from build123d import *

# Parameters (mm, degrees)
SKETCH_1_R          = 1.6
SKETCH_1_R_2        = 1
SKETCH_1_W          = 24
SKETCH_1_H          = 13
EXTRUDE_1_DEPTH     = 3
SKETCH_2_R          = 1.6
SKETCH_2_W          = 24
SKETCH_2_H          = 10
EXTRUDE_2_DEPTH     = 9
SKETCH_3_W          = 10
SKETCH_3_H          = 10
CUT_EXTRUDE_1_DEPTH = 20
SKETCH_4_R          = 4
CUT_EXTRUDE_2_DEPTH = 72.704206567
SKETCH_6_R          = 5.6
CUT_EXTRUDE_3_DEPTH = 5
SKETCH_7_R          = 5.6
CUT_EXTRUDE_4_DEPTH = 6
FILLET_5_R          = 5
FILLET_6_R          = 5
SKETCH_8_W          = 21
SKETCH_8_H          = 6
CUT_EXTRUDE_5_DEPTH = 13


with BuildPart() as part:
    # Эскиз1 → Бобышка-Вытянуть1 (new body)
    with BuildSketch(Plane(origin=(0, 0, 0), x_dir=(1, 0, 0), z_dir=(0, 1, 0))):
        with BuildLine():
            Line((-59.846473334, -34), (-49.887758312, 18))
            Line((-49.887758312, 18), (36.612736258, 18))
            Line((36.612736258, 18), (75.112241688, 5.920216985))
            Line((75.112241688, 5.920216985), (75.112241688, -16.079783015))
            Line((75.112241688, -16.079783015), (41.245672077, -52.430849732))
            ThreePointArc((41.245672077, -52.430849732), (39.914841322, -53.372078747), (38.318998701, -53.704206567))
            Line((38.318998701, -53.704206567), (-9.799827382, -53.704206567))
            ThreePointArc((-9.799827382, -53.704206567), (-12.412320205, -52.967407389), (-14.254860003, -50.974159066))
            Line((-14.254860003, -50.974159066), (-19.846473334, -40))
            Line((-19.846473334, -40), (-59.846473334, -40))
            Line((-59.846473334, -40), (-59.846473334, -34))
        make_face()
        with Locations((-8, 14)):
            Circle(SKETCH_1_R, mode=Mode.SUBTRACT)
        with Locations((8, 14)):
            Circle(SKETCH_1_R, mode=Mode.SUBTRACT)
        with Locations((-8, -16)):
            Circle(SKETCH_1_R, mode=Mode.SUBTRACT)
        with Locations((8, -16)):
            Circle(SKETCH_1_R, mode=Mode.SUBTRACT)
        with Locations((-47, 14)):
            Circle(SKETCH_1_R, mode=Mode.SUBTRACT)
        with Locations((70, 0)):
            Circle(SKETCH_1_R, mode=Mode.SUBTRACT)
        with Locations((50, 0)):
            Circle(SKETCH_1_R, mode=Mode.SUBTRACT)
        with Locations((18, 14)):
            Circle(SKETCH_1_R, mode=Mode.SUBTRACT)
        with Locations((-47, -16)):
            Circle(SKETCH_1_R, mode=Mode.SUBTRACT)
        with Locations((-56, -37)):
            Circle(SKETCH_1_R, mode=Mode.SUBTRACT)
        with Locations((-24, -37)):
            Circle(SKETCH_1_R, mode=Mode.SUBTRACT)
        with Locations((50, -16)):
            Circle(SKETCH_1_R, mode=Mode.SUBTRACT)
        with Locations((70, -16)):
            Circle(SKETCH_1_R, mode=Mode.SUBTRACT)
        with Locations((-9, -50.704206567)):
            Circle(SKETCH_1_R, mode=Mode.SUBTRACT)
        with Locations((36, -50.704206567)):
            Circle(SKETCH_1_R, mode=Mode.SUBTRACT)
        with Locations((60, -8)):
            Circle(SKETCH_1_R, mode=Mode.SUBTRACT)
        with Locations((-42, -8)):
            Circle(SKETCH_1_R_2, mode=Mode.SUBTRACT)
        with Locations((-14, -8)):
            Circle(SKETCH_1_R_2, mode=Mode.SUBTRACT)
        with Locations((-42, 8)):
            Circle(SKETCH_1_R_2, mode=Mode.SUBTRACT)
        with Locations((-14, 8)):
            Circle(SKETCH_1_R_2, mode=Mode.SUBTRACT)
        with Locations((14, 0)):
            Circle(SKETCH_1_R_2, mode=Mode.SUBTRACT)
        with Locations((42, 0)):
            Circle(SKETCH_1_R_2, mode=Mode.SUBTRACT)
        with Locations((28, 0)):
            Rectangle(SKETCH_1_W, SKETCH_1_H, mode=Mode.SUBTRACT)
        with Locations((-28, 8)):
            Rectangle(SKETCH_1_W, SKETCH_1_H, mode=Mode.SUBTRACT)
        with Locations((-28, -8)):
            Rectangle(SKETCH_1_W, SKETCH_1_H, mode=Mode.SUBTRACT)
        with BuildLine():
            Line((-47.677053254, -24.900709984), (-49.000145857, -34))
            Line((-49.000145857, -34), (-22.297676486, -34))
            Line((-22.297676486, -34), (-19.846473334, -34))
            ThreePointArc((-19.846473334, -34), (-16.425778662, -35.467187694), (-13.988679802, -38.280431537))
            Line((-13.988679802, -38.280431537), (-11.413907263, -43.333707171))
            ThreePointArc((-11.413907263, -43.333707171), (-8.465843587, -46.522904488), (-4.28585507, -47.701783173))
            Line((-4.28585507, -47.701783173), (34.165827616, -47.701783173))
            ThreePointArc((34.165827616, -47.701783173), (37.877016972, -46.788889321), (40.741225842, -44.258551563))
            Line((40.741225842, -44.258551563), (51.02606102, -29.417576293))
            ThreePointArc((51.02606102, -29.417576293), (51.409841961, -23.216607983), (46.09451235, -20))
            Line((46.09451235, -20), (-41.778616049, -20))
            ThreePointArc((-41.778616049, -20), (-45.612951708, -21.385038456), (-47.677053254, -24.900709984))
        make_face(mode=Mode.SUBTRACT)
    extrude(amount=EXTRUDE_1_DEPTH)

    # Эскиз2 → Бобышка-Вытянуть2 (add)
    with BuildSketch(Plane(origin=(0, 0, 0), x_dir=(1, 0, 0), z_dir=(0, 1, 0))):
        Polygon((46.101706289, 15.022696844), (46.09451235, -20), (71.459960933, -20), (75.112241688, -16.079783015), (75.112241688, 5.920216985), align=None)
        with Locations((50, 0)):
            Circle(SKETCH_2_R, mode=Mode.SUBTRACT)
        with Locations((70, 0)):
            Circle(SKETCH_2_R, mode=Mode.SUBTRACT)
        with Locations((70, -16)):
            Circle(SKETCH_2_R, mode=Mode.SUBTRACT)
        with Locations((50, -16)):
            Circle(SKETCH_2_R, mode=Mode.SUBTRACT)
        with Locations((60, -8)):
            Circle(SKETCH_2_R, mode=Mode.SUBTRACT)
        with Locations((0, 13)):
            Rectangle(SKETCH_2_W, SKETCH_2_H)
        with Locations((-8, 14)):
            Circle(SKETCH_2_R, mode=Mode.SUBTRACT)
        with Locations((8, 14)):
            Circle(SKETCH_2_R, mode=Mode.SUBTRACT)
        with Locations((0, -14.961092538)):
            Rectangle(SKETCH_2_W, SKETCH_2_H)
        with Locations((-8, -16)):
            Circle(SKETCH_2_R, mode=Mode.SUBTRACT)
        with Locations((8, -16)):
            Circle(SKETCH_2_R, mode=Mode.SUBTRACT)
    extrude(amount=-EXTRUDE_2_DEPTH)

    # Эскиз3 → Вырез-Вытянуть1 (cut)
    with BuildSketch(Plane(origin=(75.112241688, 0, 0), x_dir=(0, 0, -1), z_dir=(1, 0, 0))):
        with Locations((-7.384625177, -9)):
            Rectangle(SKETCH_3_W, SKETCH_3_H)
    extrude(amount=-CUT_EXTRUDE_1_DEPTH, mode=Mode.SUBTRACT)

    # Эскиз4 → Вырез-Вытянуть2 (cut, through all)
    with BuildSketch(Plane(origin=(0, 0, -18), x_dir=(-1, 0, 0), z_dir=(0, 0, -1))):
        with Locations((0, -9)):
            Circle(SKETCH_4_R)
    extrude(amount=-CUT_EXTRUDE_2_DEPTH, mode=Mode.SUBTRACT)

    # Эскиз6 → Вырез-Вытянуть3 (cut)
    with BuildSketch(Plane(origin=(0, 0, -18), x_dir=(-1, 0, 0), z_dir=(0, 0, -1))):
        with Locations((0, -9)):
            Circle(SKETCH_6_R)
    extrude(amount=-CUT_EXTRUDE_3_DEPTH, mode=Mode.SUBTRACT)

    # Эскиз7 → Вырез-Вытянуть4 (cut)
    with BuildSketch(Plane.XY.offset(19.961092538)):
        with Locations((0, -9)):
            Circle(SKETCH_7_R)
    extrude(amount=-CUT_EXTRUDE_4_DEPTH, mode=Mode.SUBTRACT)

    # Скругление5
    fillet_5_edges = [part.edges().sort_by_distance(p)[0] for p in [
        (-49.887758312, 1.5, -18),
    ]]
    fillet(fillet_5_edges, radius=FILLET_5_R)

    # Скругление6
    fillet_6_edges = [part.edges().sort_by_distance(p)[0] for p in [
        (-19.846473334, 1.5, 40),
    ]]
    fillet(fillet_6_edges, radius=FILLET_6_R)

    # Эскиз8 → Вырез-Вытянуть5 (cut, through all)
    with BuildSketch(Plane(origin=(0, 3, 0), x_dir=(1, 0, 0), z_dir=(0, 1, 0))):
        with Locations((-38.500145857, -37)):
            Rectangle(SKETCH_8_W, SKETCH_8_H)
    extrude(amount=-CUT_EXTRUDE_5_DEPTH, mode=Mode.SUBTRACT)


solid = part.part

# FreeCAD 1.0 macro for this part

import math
import FreeCAD as App
import Part
import Sketcher
Q = App.Units.Quantity


def edges_at(feature, points):
    """Names of the edges that pass closest to the given points."""
    edges = feature.Shape.Edges
    near = lambda p: min(range(len(edges)), key=lambda i: edges[i].distToShape(Part.Vertex(*p))[0])
    return sorted({f"Edge{near(p) + 1}" for p in points})


def add_polygon(sketch, points):
    """Adds a closed chain of lines whose ends are joined by coincident constraints."""
    first, n = sketch.GeometryCount, len(points)
    for a, b in zip(points, points[1:] + points[:1]):
        sketch.addGeometry(Part.LineSegment(App.Vector(*a, 0), App.Vector(*b, 0)), False)
    for i in range(n):
        sketch.addConstraint(Sketcher.Constraint("Coincident", first + i, 2, first + (i + 1) % n, 1))

doc = App.newDocument("Part")
body = doc.addObject("PartDesign::Body", "Body")

sketch1 = body.newObject("Sketcher::SketchObject", "Sketch")
sketch1.AttachmentSupport = (doc.getObject("XZ_Plane"), [""])
sketch1.MapMode = "FlatFace"
sketch1.addGeometry(Part.LineSegment(App.Vector(-49.9, -18, 0), App.Vector(-59.8, 34, 0)), False)
sketch1.addGeometry(Part.LineSegment(App.Vector(-59.8, 34, 0), App.Vector(-59.8, 40, 0)), False)
sketch1.addGeometry(Part.LineSegment(App.Vector(-59.8, 40, 0), App.Vector(-19.8, 40, 0)), False)
sketch1.addGeometry(Part.LineSegment(App.Vector(-19.8, 40, 0), App.Vector(-14.3, 51, 0)), False)
sketch1.addGeometry(Part.ArcOfCircle(Part.Circle(App.Vector(-9.8, 48.7, 0), App.Vector(0, 0, 1), 5), math.radians(90), math.radians(153)), False)
sketch1.addGeometry(Part.LineSegment(App.Vector(-9.8, 53.7, 0), App.Vector(38.3, 53.7, 0)), False)
sketch1.addGeometry(Part.ArcOfCircle(Part.Circle(App.Vector(38.3, 49.7, 0), App.Vector(0, 0, 1), 4), math.radians(43), math.radians(90)), False)
sketch1.addGeometry(Part.LineSegment(App.Vector(41.2, 52.4, 0), App.Vector(75.1, 16.1, 0)), False)
sketch1.addGeometry(Part.LineSegment(App.Vector(75.1, 16.1, 0), App.Vector(75.1, -5.9, 0)), False)
sketch1.addGeometry(Part.LineSegment(App.Vector(75.1, -5.9, 0), App.Vector(36.6, -18, 0)), False)
sketch1.addGeometry(Part.LineSegment(App.Vector(36.6, -18, 0), App.Vector(-49.9, -18, 0)), False)
sketch1.addGeometry(Part.Circle(App.Vector(36, 50.7, 0), App.Vector(0, 0, 1), 1.6), False)
sketch1.addGeometry(Part.Circle(App.Vector(-9, 50.7, 0), App.Vector(0, 0, 1), 1.6), False)
sketch1.addGeometry(Part.Circle(App.Vector(-24, 37, 0), App.Vector(0, 0, 1), 1.6), False)
sketch1.addGeometry(Part.Circle(App.Vector(-56, 37, 0), App.Vector(0, 0, 1), 1.6), False)
sketch1.addGeometry(Part.ArcOfCircle(Part.Circle(App.Vector(-41.8, 26, 0), App.Vector(0, 0, 1), 6), math.radians(-169), math.radians(-90)), False)
sketch1.addGeometry(Part.LineSegment(App.Vector(-41.8, 20, 0), App.Vector(46.1, 20, 0)), False)
sketch1.addGeometry(Part.ArcOfCircle(Part.Circle(App.Vector(46.1, 26, 0), App.Vector(0, 0, 1), 6), math.radians(-90), math.radians(35)), False)
sketch1.addGeometry(Part.LineSegment(App.Vector(51, 29.4, 0), App.Vector(40.7, 44.3, 0)), False)
sketch1.addGeometry(Part.ArcOfCircle(Part.Circle(App.Vector(34.2, 39.7, 0), App.Vector(0, 0, 1), 8), math.radians(35), math.radians(90)), False)
sketch1.addGeometry(Part.LineSegment(App.Vector(34.2, 47.7, 0), App.Vector(-4.3, 47.7, 0)), False)
sketch1.addGeometry(Part.ArcOfCircle(Part.Circle(App.Vector(-4.3, 39.7, 0), App.Vector(0, 0, 1), 8), math.radians(90), math.radians(153)), False)
sketch1.addGeometry(Part.LineSegment(App.Vector(-11.4, 43.3, 0), App.Vector(-14, 38.3, 0)), False)
sketch1.addGeometry(Part.ArcOfCircle(Part.Circle(App.Vector(-21.3, 42.2, 0), App.Vector(0, 0, 1), 8.3), math.radians(-80), math.radians(-28)), False)
sketch1.addGeometry(Part.LineSegment(App.Vector(-19.8, 34, 0), App.Vector(-49, 34, 0)), False)
sketch1.addGeometry(Part.LineSegment(App.Vector(-49, 34, 0), App.Vector(-47.7, 24.9, 0)), False)
sketch1.addGeometry(Part.Circle(App.Vector(70, 16, 0), App.Vector(0, 0, 1), 1.6), False)
sketch1.addGeometry(Part.Circle(App.Vector(50, 16, 0), App.Vector(0, 0, 1), 1.6), False)
sketch1.addGeometry(Part.Circle(App.Vector(60, 8, 0), App.Vector(0, 0, 1), 1.6), False)
sketch1.addGeometry(Part.Circle(App.Vector(8, 16, 0), App.Vector(0, 0, 1), 1.6), False)
sketch1.addGeometry(Part.Circle(App.Vector(70, 0, 0), App.Vector(0, 0, 1), 1.6), False)
sketch1.addGeometry(Part.Circle(App.Vector(50, 0, 0), App.Vector(0, 0, 1), 1.6), False)
sketch1.addGeometry(Part.Circle(App.Vector(42, 0, 0), App.Vector(0, 0, 1), 1), False)
add_polygon(sketch1, [(16, 6.5), (16, -6.5), (40, -6.5), (40, 6.5)])
sketch1.addGeometry(Part.Circle(App.Vector(14, 0, 0), App.Vector(0, 0, 1), 1), False)
sketch1.addGeometry(Part.Circle(App.Vector(18, -14, 0), App.Vector(0, 0, 1), 1.6), False)
sketch1.addGeometry(Part.Circle(App.Vector(8, -14, 0), App.Vector(0, 0, 1), 1.6), False)
sketch1.addGeometry(Part.Circle(App.Vector(-8, 16, 0), App.Vector(0, 0, 1), 1.6), False)
sketch1.addGeometry(Part.Circle(App.Vector(-14, 8, 0), App.Vector(0, 0, 1), 1), False)
sketch1.addGeometry(Part.Circle(App.Vector(-47, 16, 0), App.Vector(0, 0, 1), 1.6), False)
add_polygon(sketch1, [(-40, 14.5), (-40, 1.5), (-16, 1.5), (-16, 14.5)])
sketch1.addGeometry(Part.Circle(App.Vector(-42, 8, 0), App.Vector(0, 0, 1), 1), False)
sketch1.addGeometry(Part.Circle(App.Vector(-8, -14, 0), App.Vector(0, 0, 1), 1.6), False)
sketch1.addGeometry(Part.Circle(App.Vector(-14, -8, 0), App.Vector(0, 0, 1), 1), False)
add_polygon(sketch1, [(-40, -1.5), (-40, -14.5), (-16, -14.5), (-16, -1.5)])
sketch1.addGeometry(Part.Circle(App.Vector(-42, -8, 0), App.Vector(0, 0, 1), 1), False)
sketch1.addGeometry(Part.Circle(App.Vector(-47, -14, 0), App.Vector(0, 0, 1), 1.6), False)
sketch1.addConstraint([
    Sketcher.Constraint("Coincident", 0, 2, 1, 1),
    Sketcher.Constraint("Coincident", 1, 2, 2, 1),
    Sketcher.Constraint("Coincident", 2, 2, 3, 1),
    Sketcher.Constraint("Tangent", 3, 2, 4, 2),
    Sketcher.Constraint("Tangent", 4, 1, 5, 1),
    Sketcher.Constraint("Tangent", 5, 2, 6, 2),
    Sketcher.Constraint("Tangent", 6, 1, 7, 1),
    Sketcher.Constraint("Coincident", 7, 2, 8, 1),
    Sketcher.Constraint("Coincident", 8, 2, 9, 1),
    Sketcher.Constraint("Coincident", 9, 2, 10, 1),
    Sketcher.Constraint("Coincident", 10, 2, 0, 1),
    Sketcher.Constraint("Tangent", 15, 2, 16, 1),
    Sketcher.Constraint("Tangent", 16, 2, 17, 1),
    Sketcher.Constraint("Tangent", 17, 2, 18, 1),
    Sketcher.Constraint("Tangent", 18, 2, 19, 1),
    Sketcher.Constraint("Tangent", 19, 2, 20, 1),
    Sketcher.Constraint("Tangent", 20, 2, 21, 1),
    Sketcher.Constraint("Tangent", 21, 2, 22, 1),
    Sketcher.Constraint("Coincident", 22, 2, 23, 2),
    Sketcher.Constraint("Coincident", 23, 1, 24, 1),
    Sketcher.Constraint("Coincident", 24, 2, 25, 1),
    Sketcher.Constraint("Coincident", 25, 2, 15, 1),
    Sketcher.Constraint("Vertical", 1),
    Sketcher.Constraint("Horizontal", 2),
    Sketcher.Constraint("Horizontal", 5),
    Sketcher.Constraint("Vertical", 8),
    Sketcher.Constraint("Horizontal", 10),
    Sketcher.Constraint("Horizontal", 16),
    Sketcher.Constraint("Horizontal", 20),
    Sketcher.Constraint("Horizontal", 24),
    Sketcher.Constraint("Vertical", 33),
    Sketcher.Constraint("Horizontal", 34),
    Sketcher.Constraint("Vertical", 35),
    Sketcher.Constraint("Horizontal", 36),
    Sketcher.Constraint("Vertical", 43),
    Sketcher.Constraint("Horizontal", 44),
    Sketcher.Constraint("Vertical", 45),
    Sketcher.Constraint("Horizontal", 46),
    Sketcher.Constraint("Vertical", 50),
    Sketcher.Constraint("Horizontal", 51),
    Sketcher.Constraint("Vertical", 52),
    Sketcher.Constraint("Horizontal", 53),
    Sketcher.Constraint("Equal", 11, 12),
    Sketcher.Constraint("Equal", 12, 13),
    Sketcher.Constraint("Equal", 13, 14),
    Sketcher.Constraint("Equal", 15, 17),
    Sketcher.Constraint("Equal", 19, 21),
    Sketcher.Constraint("Equal", 14, 26),
    Sketcher.Constraint("Equal", 26, 27),
    Sketcher.Constraint("Equal", 27, 28),
    Sketcher.Constraint("Equal", 28, 29),
    Sketcher.Constraint("Equal", 29, 30),
    Sketcher.Constraint("Equal", 30, 31),
    Sketcher.Constraint("Equal", 32, 37),
    Sketcher.Constraint("Equal", 31, 38),
    Sketcher.Constraint("Equal", 38, 39),
    Sketcher.Constraint("Equal", 39, 40),
    Sketcher.Constraint("Equal", 37, 41),
    Sketcher.Constraint("Equal", 40, 42),
    Sketcher.Constraint("Equal", 41, 47),
    Sketcher.Constraint("Equal", 42, 48),
    Sketcher.Constraint("Equal", 47, 49),
    Sketcher.Constraint("Equal", 49, 54),
    Sketcher.Constraint("Equal", 48, 55),
    Sketcher.Constraint("Symmetric", 29, 3, 40, 3, -2),
    Sketcher.Constraint("Symmetric", 39, 3, 48, 3, -2),
    Sketcher.Constraint("Symmetric", 41, 3, 49, 3, -1),
    Sketcher.Constraint("Symmetric", 47, 3, 54, 3, -1),
    Sketcher.Constraint("Symmetric", 46, 2, 50, 2, -1),
    Sketcher.Constraint("Symmetric", 44, 2, 52, 2, -1),
    Sketcher.Constraint("PointOnObject", 30, 3, -1),
    Sketcher.Constraint("PointOnObject", 31, 3, -1),
    Sketcher.Constraint("PointOnObject", 32, 3, -1),
    Sketcher.Constraint("PointOnObject", 37, 3, -1),
    Sketcher.Constraint("Parallel", 3, 22),
    Sketcher.Constraint("Horizontal", 11, 3, 12, 3),
    Sketcher.Constraint("Horizontal", 13, 3, 14, 3),
    Sketcher.Constraint("Horizontal", 26, 3, 27, 3),
    Sketcher.Constraint("Horizontal", 27, 3, 29, 3),
    Sketcher.Constraint("Horizontal", 38, 3, 39, 3),
    Sketcher.Constraint("Horizontal", 28, 3, 41, 3),
    Sketcher.Constraint("Horizontal", 40, 3, 42, 3),
    Sketcher.Constraint("Horizontal", 41, 3, 47, 3),
    Sketcher.Constraint("Horizontal", 48, 3, 55, 3),
    Sketcher.Constraint("Horizontal", 0, 2, 23, 1),
    Sketcher.Constraint("Vertical", 26, 3, 30, 3),
    Sketcher.Constraint("Vertical", 27, 3, 31, 3),
    Sketcher.Constraint("Vertical", 29, 3, 39, 3),
    Sketcher.Constraint("Vertical", 42, 3, 55, 3),
    Sketcher.Constraint("Vertical", 2, 2, 23, 1),
    Sketcher.Constraint("Equal", 36, 44),
    Sketcher.Constraint("Equal", 35, 43),
    Sketcher.Constraint("Diameter", 32, Q("2 mm")),
    Sketcher.Constraint("Radius", 4, Q("5 mm")),
    Sketcher.Constraint("Radius", 6, Q("4 mm")),
    Sketcher.Constraint("Radius", 15, Q("6 mm")),
    Sketcher.Constraint("Radius", 19, Q("8 mm")),
    Sketcher.Constraint("Diameter", 11, Q("3.2 mm")),
    Sketcher.Constraint("DistanceX", 2, 1, 2, 2, Q("40 mm")),
    Sketcher.Constraint("DistanceX", 34, 1, 34, 2, Q("24 mm")),
    Sketcher.Constraint("DistanceY", 1, 1, 1, 2, Q("6 mm")),
    Sketcher.Constraint("DistanceY", 8, 2, 8, 1, Q("22 mm")),
    Sketcher.Constraint("DistanceY", 33, 2, 33, 1, Q("13 mm")),
    Sketcher.Constraint("Angle", 3, Q("63 deg")),
    Sketcher.Constraint("DistanceX", -1, 1, 11, 3, Q("36 mm")),
    Sketcher.Constraint("DistanceX", 12, 3, -1, 1, Q("9 mm")),
    Sketcher.Constraint("DistanceX", 13, 3, -1, 1, Q("24 mm")),
    Sketcher.Constraint("DistanceY", -1, 1, 13, 3, Q("37 mm")),
    Sketcher.Constraint("DistanceX", 14, 3, -1, 1, Q("56 mm")),
    Sketcher.Constraint("DistanceY", -1, 1, 15, 3, Q("26 mm")),
    Sketcher.Constraint("DistanceX", -1, 1, 26, 3, Q("70 mm")),
    Sketcher.Constraint("DistanceY", -1, 1, 26, 3, Q("16 mm")),
    Sketcher.Constraint("DistanceX", -1, 1, 27, 3, Q("50 mm")),
    Sketcher.Constraint("DistanceX", -1, 1, 28, 3, Q("60 mm")),
    Sketcher.Constraint("DistanceY", -1, 1, 28, 3, Q("8 mm")),
    Sketcher.Constraint("DistanceX", -1, 1, 29, 3, Q("8 mm")),
    Sketcher.Constraint("DistanceX", -1, 1, 32, 3, Q("42 mm")),
    Sketcher.Constraint("DistanceX", -1, 1, 37, 3, Q("14 mm")),
    Sketcher.Constraint("DistanceX", -1, 1, 38, 3, Q("18 mm")),
    Sketcher.Constraint("DistanceY", 38, 3, -1, 1, Q("14 mm")),
    Sketcher.Constraint("DistanceX", 41, 3, -1, 1, Q("14 mm")),
    Sketcher.Constraint("DistanceX", 42, 3, -1, 1, Q("47 mm")),
    Sketcher.Constraint("DistanceX", 47, 3, -1, 1, Q("42 mm")),
    Sketcher.Constraint("DistanceY", -1, 1, 0, 2, Q("34 mm")),
    Sketcher.Constraint("DistanceY", 9, 2, -1, 1, Q("18 mm")),
    Sketcher.Constraint("DistanceX", -1, 1, 33, 2, Q("16 mm")),
    Sketcher.Constraint("DistanceX", 43, 2, -1, 1, Q("40 mm")),
    Sketcher.Constraint("DistanceY", 33, 2, -1, 1, Q("6.5 mm")),
    Sketcher.Constraint("DistanceY", -1, 1, 43, 2, Q("1.5 mm")),
    Sketcher.Constraint("Angle", 9, Q("-162.579988 deg")),
    Sketcher.Constraint("DistanceX", -1, 1, 6, 3, Q("38.318999 mm")),
    Sketcher.Constraint("Radius", 23, Q("8.309957 mm")),
    Sketcher.Constraint("DistanceX", 16, 1, 16, 2, Q("87.873128 mm")),
    Sketcher.Constraint("Distance", 0, Q("52.945028 mm")),
    Sketcher.Constraint("Distance", 9, Q("40.350131 mm")),
    Sketcher.Constraint("Distance", 25, Q("9.19498 mm")),
    Sketcher.Constraint("DistanceX", 5, 1, 5, 2, Q("48.118826 mm")),
    Sketcher.Constraint("DistanceX", 10, 2, 10, 1, Q("86.500495 mm")),
    Sketcher.Constraint("DistanceX", 20, 2, 20, 1, Q("38.451683 mm")),
    Sketcher.Constraint("DistanceX", 24, 2, 24, 1, Q("29.153673 mm")),
    Sketcher.Constraint("DistanceY", -1, 1, 3, 2, Q("50.974159 mm")),
    Sketcher.Constraint("DistanceX", -1, 1, 17, 2, Q("51.026061 mm")),
    Sketcher.Constraint("DistanceY", -1, 1, 18, 2, Q("44.258552 mm")),
    Sketcher.Constraint("DistanceX", 22, 2, -1, 1, Q("13.98868 mm")),
    Sketcher.Constraint("DistanceY", -1, 1, 22, 2, Q("38.280432 mm")),
    Sketcher.Constraint("DistanceY", -1, 1, 11, 3, Q("50.704207 mm")),
])
pad1 = body.newObject("PartDesign::Pad", "Pad")
pad1.Profile = sketch1
pad1.Length = 3
pad1.Reversed = True

sketch2 = body.newObject("Sketcher::SketchObject", "Sketch001")
sketch2.AttachmentSupport = (doc.getObject("XZ_Plane"), [""])
sketch2.MapMode = "FlatFace"
add_polygon(sketch2, [(46.1, -15), (46.1, 20), (71.5, 20), (75.1, 16.1), (75.1, -5.9)])
sketch2.addGeometry(Part.Circle(App.Vector(50, 16, 0), App.Vector(0, 0, 1), 1.6), False)
sketch2.addGeometry(Part.Circle(App.Vector(70, 16, 0), App.Vector(0, 0, 1), 1.6), False)
sketch2.addGeometry(Part.Circle(App.Vector(50, 0, 0), App.Vector(0, 0, 1), 1.6), False)
sketch2.addGeometry(Part.Circle(App.Vector(60, 8, 0), App.Vector(0, 0, 1), 1.6), False)
sketch2.addGeometry(Part.Circle(App.Vector(70, 0, 0), App.Vector(0, 0, 1), 1.6), False)
add_polygon(sketch2, [(-12, -18), (-12, -8), (12, -8), (12, -18)])
sketch2.addGeometry(Part.Circle(App.Vector(-8, -14, 0), App.Vector(0, 0, 1), 1.6), False)
sketch2.addGeometry(Part.Circle(App.Vector(8, -14, 0), App.Vector(0, 0, 1), 1.6), False)
add_polygon(sketch2, [(-12, 10), (-12, 20), (12, 20), (12, 10)])
sketch2.addGeometry(Part.Circle(App.Vector(-8, 16, 0), App.Vector(0, 0, 1), 1.6), False)
sketch2.addGeometry(Part.Circle(App.Vector(8, 16, 0), App.Vector(0, 0, 1), 1.6), False)
sketch2.addConstraint([
    Sketcher.Constraint("Horizontal", 1),
    Sketcher.Constraint("Vertical", 3),
    Sketcher.Constraint("Vertical", 10),
    Sketcher.Constraint("Horizontal", 11),
    Sketcher.Constraint("Vertical", 12),
    Sketcher.Constraint("Horizontal", 13),
    Sketcher.Constraint("Vertical", 16),
    Sketcher.Constraint("Horizontal", 17),
    Sketcher.Constraint("Vertical", 18),
    Sketcher.Constraint("Horizontal", 19),
    Sketcher.Constraint("Equal", 5, 6),
    Sketcher.Constraint("Equal", 6, 7),
    Sketcher.Constraint("Equal", 7, 8),
    Sketcher.Constraint("Equal", 8, 9),
    Sketcher.Constraint("Equal", 9, 14),
    Sketcher.Constraint("Equal", 14, 15),
    Sketcher.Constraint("Equal", 15, 20),
    Sketcher.Constraint("Equal", 20, 21),
    Sketcher.Constraint("Symmetric", 14, 3, 15, 3, -2),
    Sketcher.Constraint("Symmetric", 20, 3, 21, 3, -2),
    Sketcher.Constraint("PointOnObject", 7, 3, -1),
    Sketcher.Constraint("PointOnObject", 9, 3, -1),
    Sketcher.Constraint("Horizontal", 5, 3, 6, 3),
    Sketcher.Constraint("Horizontal", 6, 3, 20, 3),
    Sketcher.Constraint("Vertical", 5, 3, 7, 3),
    Sketcher.Constraint("Vertical", 6, 3, 9, 3),
    Sketcher.Constraint("Vertical", 14, 3, 20, 3),
    Sketcher.Constraint("Vertical", 13, 2, 16, 2),
    Sketcher.Constraint("Vertical", 12, 2, 17, 2),
    Sketcher.Constraint("Equal", 12, 16),
    Sketcher.Constraint("Diameter", 5, Q("3.2 mm")),
    Sketcher.Constraint("DistanceX", 11, 1, 11, 2, Q("24 mm")),
    Sketcher.Constraint("DistanceY", 3, 2, 3, 1, Q("22 mm")),
    Sketcher.Constraint("DistanceY", 10, 1, 10, 2, Q("10 mm")),
    Sketcher.Constraint("DistanceX", -1, 1, 5, 3, Q("50 mm")),
    Sketcher.Constraint("DistanceY", -1, 1, 5, 3, Q("16 mm")),
    Sketcher.Constraint("DistanceX", -1, 1, 6, 3, Q("70 mm")),
    Sketcher.Constraint("DistanceX", -1, 1, 8, 3, Q("60 mm")),
    Sketcher.Constraint("DistanceY", -1, 1, 8, 3, Q("8 mm")),
    Sketcher.Constraint("DistanceX", 14, 3, -1, 1, Q("8 mm")),
    Sketcher.Constraint("DistanceY", 14, 3, -1, 1, Q("14 mm")),
    Sketcher.Constraint("DistanceY", -1, 1, 0, 2, Q("20 mm")),
    Sketcher.Constraint("DistanceX", 10, 2, -1, 1, Q("12 mm")),
    Sketcher.Constraint("DistanceY", 10, 2, -1, 1, Q("8 mm")),
    Sketcher.Constraint("Angle", 4, Q("-162.579988 deg")),
    Sketcher.Constraint("DistanceX", 1, 1, 1, 2, Q("25.365449 mm")),
    Sketcher.Constraint("DistanceX", -1, 1, 1, 2, Q("71.459961 mm")),
    Sketcher.Constraint("DistanceX", -1, 1, 2, 2, Q("75.112242 mm")),
    Sketcher.Constraint("DistanceY", 4, 2, 3, 2, Q("9.10248 mm")),
    Sketcher.Constraint("Distance", 0, Q("35.022698 mm")),
    Sketcher.Constraint("DistanceY", -1, 1, 16, 2, Q("19.961093 mm")),
])
pad2 = body.newObject("PartDesign::Pad", "Pad001")
pad2.Profile = sketch2
pad2.Length = 9

sketch3 = body.newObject("Sketcher::SketchObject", "Sketch002")
sketch3.AttachmentSupport = (doc.getObject("YZ_Plane"), [""])
sketch3.MapMode = "FlatFace"
sketch3.AttachmentOffset = App.Placement(App.Vector(0, 0, 75.112242), App.Rotation())
add_polygon(sketch3, [(-4, 12), (-14, 12), (-14, 2), (-4, 2)])
sketch3.addConstraint([
    Sketcher.Constraint("Horizontal", 0),
    Sketcher.Constraint("Vertical", 1),
    Sketcher.Constraint("Horizontal", 2),
    Sketcher.Constraint("Vertical", 3),
    Sketcher.Constraint("Equal", 2, 1),
    Sketcher.Constraint("DistanceX", 0, 2, 0, 1, Q("10 mm")),
    Sketcher.Constraint("DistanceX", 0, 2, -1, 1, Q("14 mm")),
    Sketcher.Constraint("DistanceY", -1, 1, 0, 2, Q("12.384625 mm")),
])
pocket1 = body.newObject("PartDesign::Pocket", "Pocket")
pocket1.Profile = sketch3
pocket1.Length = 20

sketch4 = body.newObject("Sketcher::SketchObject", "Sketch003")
sketch4.AttachmentSupport = (doc.getObject("XY_Plane"), [""])
sketch4.MapMode = "FlatFace"
sketch4.AttachmentOffset = App.Placement(App.Vector(0, 0, -18), App.Rotation())
sketch4.addGeometry(Part.Circle(App.Vector(0, -9, 0), App.Vector(0, 0, 1), 4), False)
sketch4.addConstraint([
    Sketcher.Constraint("PointOnObject", 0, 3, -2),
    Sketcher.Constraint("Diameter", 0, Q("8 mm")),
    Sketcher.Constraint("DistanceY", 0, 3, -1, 1, Q("9 mm")),
])
pocket2 = body.newObject("PartDesign::Pocket", "Pocket001")
pocket2.Profile = sketch4
pocket2.Type = "ThroughAll"
pocket2.Reversed = True

sketch5 = body.newObject("Sketcher::SketchObject", "Sketch004")
sketch5.AttachmentSupport = (doc.getObject("XY_Plane"), [""])
sketch5.MapMode = "FlatFace"
sketch5.AttachmentOffset = App.Placement(App.Vector(0, 0, -18), App.Rotation())
sketch5.addGeometry(Part.Circle(App.Vector(0, -9, 0), App.Vector(0, 0, 1), 6), False)
sketch5.addConstraint([
    Sketcher.Constraint("PointOnObject", 0, 3, -2),
    Sketcher.Constraint("Diameter", 0, Q("11.2 mm")),
    Sketcher.Constraint("DistanceY", 0, 3, -1, 1, Q("9 mm")),
])
pocket3 = body.newObject("PartDesign::Pocket", "Pocket002")
pocket3.Profile = sketch5
pocket3.Length = 5
pocket3.Reversed = True

sketch6 = body.newObject("Sketcher::SketchObject", "Sketch005")
sketch6.AttachmentSupport = (doc.getObject("XY_Plane"), [""])
sketch6.MapMode = "FlatFace"
sketch6.AttachmentOffset = App.Placement(App.Vector(0, 0, 19.961093), App.Rotation())
sketch6.addGeometry(Part.Circle(App.Vector(0, -9, 0), App.Vector(0, 0, 1), 6), False)
sketch6.addConstraint([
    Sketcher.Constraint("PointOnObject", 0, 3, -2),
    Sketcher.Constraint("Diameter", 0, Q("11.2 mm")),
    Sketcher.Constraint("DistanceY", 0, 3, -1, 1, Q("9 mm")),
])
pocket4 = body.newObject("PartDesign::Pocket", "Pocket003")
pocket4.Profile = sketch6
pocket4.Length = 6
doc.recompute()

fillet = body.newObject("PartDesign::Fillet", "Fillet")
fillet.Base = (pocket4, edges_at(pocket4, [(-49.888, 1.5, -18)]))
fillet.Radius = 5
doc.recompute()

fillet2 = body.newObject("PartDesign::Fillet", "Fillet001")
fillet2.Base = (fillet, edges_at(fillet, [(-19.846, 1.5, 40)]))
fillet2.Radius = 5

sketch7 = body.newObject("Sketcher::SketchObject", "Sketch006")
sketch7.AttachmentSupport = (doc.getObject("XZ_Plane"), [""])
sketch7.MapMode = "FlatFace"
sketch7.AttachmentOffset = App.Placement(App.Vector(0, 0, -3), App.Rotation())
add_polygon(sketch7, [(-49, 34), (-49, 40), (-28, 40), (-28, 34)])
sketch7.addConstraint([
    Sketcher.Constraint("Vertical", 0),
    Sketcher.Constraint("Horizontal", 1),
    Sketcher.Constraint("Vertical", 2),
    Sketcher.Constraint("Horizontal", 3),
    Sketcher.Constraint("DistanceX", 1, 1, 1, 2, Q("21 mm")),
    Sketcher.Constraint("DistanceY", 0, 1, 0, 2, Q("6 mm")),
    Sketcher.Constraint("DistanceY", -1, 1, 0, 2, Q("40 mm")),
    Sketcher.Constraint("DistanceX", 0, 2, -1, 1, Q("49.000146 mm")),
])
pocket5 = body.newObject("PartDesign::Pocket", "Pocket004")
pocket5.Profile = sketch7
pocket5.Type = "ThroughAll"
pocket5.Reversed = True

doc.recompute()
